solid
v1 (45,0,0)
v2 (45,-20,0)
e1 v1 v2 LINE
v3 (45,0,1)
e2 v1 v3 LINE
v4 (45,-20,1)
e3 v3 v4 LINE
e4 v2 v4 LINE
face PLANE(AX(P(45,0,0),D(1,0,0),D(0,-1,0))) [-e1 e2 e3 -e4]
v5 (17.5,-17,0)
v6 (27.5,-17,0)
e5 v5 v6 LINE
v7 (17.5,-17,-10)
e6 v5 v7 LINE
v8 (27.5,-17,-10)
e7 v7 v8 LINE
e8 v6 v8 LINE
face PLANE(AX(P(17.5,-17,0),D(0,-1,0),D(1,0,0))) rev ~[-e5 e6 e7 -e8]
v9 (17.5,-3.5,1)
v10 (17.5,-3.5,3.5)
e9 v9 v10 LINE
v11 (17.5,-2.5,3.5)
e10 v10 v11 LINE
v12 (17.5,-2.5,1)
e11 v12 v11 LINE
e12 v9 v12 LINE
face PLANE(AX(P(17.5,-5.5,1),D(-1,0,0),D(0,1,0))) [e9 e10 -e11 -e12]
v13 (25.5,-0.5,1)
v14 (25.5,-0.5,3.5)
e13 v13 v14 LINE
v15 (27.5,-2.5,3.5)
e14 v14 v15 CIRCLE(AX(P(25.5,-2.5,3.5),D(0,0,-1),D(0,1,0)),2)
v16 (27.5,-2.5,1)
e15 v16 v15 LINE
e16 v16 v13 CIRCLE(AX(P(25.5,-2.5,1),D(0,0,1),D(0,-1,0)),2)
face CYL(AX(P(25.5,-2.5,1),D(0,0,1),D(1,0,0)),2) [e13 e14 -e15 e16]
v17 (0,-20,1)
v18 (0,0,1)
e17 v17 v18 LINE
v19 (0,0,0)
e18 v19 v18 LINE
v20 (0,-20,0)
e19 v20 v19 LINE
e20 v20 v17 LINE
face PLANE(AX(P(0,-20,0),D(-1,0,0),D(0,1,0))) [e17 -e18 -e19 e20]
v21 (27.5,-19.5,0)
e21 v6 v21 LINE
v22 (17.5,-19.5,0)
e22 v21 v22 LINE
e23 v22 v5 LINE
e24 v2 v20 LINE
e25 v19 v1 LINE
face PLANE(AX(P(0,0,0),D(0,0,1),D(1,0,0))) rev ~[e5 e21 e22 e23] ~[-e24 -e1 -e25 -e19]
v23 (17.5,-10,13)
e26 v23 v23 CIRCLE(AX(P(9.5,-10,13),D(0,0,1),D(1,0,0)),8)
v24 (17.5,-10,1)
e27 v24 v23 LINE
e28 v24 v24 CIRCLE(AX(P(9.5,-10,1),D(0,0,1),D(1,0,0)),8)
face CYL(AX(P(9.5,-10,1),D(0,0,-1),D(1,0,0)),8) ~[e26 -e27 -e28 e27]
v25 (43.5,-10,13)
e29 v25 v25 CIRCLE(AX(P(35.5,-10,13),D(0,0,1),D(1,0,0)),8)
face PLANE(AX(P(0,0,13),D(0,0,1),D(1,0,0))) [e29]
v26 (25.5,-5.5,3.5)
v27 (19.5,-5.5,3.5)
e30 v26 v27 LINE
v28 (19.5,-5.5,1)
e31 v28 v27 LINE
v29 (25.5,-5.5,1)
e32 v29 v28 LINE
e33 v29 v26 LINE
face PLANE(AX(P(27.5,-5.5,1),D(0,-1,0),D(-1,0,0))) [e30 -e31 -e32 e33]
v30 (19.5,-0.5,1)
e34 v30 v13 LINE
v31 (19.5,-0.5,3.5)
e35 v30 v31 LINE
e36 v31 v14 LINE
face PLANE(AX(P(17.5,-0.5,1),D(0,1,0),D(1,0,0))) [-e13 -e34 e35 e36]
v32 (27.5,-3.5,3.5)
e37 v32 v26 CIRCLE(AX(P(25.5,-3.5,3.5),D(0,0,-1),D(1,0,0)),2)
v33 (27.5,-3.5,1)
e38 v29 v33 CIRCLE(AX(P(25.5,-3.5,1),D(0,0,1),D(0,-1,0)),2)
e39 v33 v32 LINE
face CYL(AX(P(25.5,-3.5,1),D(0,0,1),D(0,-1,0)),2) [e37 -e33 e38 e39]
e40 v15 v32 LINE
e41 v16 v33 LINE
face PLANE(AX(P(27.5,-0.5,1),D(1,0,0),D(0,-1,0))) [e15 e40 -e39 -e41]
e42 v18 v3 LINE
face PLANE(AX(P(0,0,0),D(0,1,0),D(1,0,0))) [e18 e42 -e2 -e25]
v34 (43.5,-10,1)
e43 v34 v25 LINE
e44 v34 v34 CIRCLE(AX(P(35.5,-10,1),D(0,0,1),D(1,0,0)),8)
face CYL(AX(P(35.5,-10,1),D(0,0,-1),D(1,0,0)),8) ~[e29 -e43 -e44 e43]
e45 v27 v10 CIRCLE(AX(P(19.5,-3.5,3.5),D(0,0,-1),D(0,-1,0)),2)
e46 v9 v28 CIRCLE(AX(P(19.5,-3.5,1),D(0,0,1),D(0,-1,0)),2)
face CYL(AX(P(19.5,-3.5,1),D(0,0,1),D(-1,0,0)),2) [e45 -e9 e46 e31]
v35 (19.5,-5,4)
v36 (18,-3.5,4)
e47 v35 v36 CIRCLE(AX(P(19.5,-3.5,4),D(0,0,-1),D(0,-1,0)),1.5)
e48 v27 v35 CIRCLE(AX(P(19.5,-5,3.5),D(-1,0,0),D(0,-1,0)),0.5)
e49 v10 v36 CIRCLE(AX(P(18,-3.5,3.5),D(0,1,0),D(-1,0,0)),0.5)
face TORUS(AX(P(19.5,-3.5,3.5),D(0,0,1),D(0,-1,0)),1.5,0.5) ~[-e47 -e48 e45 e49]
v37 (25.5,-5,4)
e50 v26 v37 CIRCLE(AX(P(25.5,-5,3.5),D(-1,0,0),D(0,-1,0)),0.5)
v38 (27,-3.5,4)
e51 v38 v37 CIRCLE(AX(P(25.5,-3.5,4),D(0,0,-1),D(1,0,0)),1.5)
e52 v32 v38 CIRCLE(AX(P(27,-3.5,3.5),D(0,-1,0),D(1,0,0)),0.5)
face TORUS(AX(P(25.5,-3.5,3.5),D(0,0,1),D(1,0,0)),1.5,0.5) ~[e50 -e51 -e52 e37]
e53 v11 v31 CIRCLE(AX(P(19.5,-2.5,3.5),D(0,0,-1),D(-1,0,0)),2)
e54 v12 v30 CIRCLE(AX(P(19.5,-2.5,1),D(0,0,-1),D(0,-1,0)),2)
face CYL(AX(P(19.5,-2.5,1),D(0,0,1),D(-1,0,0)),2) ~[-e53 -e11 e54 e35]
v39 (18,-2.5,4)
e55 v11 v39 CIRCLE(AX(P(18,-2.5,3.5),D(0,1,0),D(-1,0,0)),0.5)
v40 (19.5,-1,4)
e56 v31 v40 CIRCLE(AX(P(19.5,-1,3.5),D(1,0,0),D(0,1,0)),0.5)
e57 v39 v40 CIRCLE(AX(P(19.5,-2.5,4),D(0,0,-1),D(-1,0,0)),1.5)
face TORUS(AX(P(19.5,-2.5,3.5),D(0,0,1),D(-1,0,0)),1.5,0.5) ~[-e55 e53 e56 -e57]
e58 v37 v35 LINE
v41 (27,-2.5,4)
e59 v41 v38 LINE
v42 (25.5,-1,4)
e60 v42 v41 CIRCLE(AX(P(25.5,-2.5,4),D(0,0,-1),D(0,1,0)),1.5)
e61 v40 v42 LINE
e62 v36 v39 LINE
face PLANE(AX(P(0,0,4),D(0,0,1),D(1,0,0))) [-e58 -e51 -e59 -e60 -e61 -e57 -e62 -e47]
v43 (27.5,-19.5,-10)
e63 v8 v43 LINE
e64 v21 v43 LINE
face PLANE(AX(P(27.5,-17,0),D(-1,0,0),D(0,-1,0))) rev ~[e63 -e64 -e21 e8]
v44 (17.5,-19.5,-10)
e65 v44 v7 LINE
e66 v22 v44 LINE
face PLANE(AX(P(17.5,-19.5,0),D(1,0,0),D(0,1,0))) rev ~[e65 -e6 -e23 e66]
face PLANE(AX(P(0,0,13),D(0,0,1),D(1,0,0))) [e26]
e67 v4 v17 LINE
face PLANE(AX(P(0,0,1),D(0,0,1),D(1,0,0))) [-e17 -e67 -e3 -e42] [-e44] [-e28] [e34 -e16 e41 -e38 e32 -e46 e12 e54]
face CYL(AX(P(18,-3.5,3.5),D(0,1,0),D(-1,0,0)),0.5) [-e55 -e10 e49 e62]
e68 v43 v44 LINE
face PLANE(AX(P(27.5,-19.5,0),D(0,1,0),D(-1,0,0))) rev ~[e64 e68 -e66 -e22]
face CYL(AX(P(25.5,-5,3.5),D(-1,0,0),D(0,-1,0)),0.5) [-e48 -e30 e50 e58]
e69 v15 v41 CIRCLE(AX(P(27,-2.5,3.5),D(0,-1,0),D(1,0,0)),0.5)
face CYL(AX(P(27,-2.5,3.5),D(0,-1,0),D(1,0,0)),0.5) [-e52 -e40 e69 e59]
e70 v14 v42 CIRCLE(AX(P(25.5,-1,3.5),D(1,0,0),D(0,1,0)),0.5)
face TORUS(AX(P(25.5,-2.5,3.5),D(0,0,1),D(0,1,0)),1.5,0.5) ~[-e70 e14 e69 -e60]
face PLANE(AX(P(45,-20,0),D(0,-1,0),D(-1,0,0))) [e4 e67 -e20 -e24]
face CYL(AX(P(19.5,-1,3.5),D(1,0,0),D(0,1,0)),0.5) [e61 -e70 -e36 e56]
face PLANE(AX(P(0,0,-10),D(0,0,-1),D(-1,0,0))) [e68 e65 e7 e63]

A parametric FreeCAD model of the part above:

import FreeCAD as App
import Part
import Sketcher


def edges_at(feature, points):
    """Names of the edges that pass closest to the given points."""
    edges = feature.Shape.Edges
    near = lambda p: min(range(len(edges)), key=lambda i: edges[i].distToShape(Part.Vertex(*p))[0])
    return sorted({f"Edge{near(p) + 1}" for p in points})


def add_polygon(sketch, points):
    """Adds a closed chain of lines whose ends are joined by coincident constraints."""
    first, n = sketch.GeometryCount, len(points)
    for a, b in zip(points, points[1:] + points[:1]):
        sketch.addGeometry(Part.LineSegment(App.Vector(*a, 0), App.Vector(*b, 0)), False)
    for i in range(n):
        sketch.addConstraint(Sketcher.Constraint("Coincident", first + i, 2, first + (i + 1) % n, 1))

doc = App.newDocument("Part")
body = doc.addObject("PartDesign::Body", "Body")

sketch1 = body.newObject("Sketcher::SketchObject", "Sketch")
sketch1.AttachmentSupport = (doc.getObject("XY_Plane"), [""])
sketch1.MapMode = "FlatFace"
add_polygon(sketch1, [(45, 0), (0, 0), (0, -20), (45, -20)])
sketch1.addConstraint(Sketcher.Constraint("Horizontal", 0))
sketch1.addConstraint(Sketcher.Constraint("Vertical", 1))
sketch1.addConstraint(Sketcher.Constraint("Horizontal", 2))
sketch1.addConstraint(Sketcher.Constraint("Vertical", 3))
sketch1.addConstraint(Sketcher.Constraint("Coincident", 0, 2, -1, 1))
sketch1.addConstraint(Sketcher.Constraint("DistanceX", 0, 2, 0, 1, 45.0))
sketch1.addConstraint(Sketcher.Constraint("DistanceY", 1, 2, 1, 1, 20.0))
pad1 = body.newObject("PartDesign::Pad", "Pad")
pad1.Profile = sketch1
pad1.Length = 1

sketch2 = body.newObject("Sketcher::SketchObject", "Sketch001")
sketch2.AttachmentSupport = (doc.getObject("XY_Plane"), [""])
sketch2.MapMode = "FlatFace"
sketch2.AttachmentOffset = App.Placement(App.Vector(0, 0, 1), App.Rotation())
sketch2.addGeometry(Part.Circle(App.Vector(10, -10, 0), App.Vector(0, 0, 1), 8), False)
sketch2.addGeometry(Part.Circle(App.Vector(36, -10, 0), App.Vector(0, 0, 1), 8), False)
sketch2.addConstraint(Sketcher.Constraint("Equal", 0, 1))
sketch2.addConstraint(Sketcher.Constraint("Horizontal", 0, 3, 1, 3))
sketch2.addConstraint(Sketcher.Constraint("Diameter", 0, 16.0))
sketch2.addConstraint(Sketcher.Constraint("DistanceY", 0, 3, -1, 1, 10.0))
sketch2.addConstraint(Sketcher.Constraint("DistanceX", 0, 3, 1, 3, 26.0))
sketch2.addConstraint(Sketcher.Constraint("DistanceX", -1, 1, 0, 3, 9.5))
pad2 = body.newObject("PartDesign::Pad", "Pad001")
pad2.Profile = sketch2
pad2.Length = 12

sketch3 = body.newObject("Sketcher::SketchObject", "Sketch002")
sketch3.AttachmentSupport = (doc.getObject("XY_Plane"), [""])
sketch3.MapMode = "FlatFace"
sketch3.AttachmentOffset = App.Placement(App.Vector(0, 0, 1), App.Rotation())
add_polygon(sketch3, [(28, 0), (18, 0), (18, -6), (28, -6)])
sketch3.addConstraint(Sketcher.Constraint("Horizontal", 0))
sketch3.addConstraint(Sketcher.Constraint("Vertical", 1))
sketch3.addConstraint(Sketcher.Constraint("Horizontal", 2))
sketch3.addConstraint(Sketcher.Constraint("Vertical", 3))
sketch3.addConstraint(Sketcher.Constraint("DistanceX", 0, 2, 0, 1, 10.0))
sketch3.addConstraint(Sketcher.Constraint("DistanceY", 1, 2, 1, 1, 5.0))
sketch3.addConstraint(Sketcher.Constraint("DistanceX", -1, 1, 0, 2, 17.5))
sketch3.addConstraint(Sketcher.Constraint("DistanceY", 0, 2, -1, 1, 0.5))
pad3 = body.newObject("PartDesign::Pad", "Pad002")
pad3.Profile = sketch3
pad3.Length = 3
doc.recompute()

fillet = body.newObject("PartDesign::Fillet", "Fillet")
fillet.Base = (pad3, edges_at(pad3, [
    (27.5, -0.5, 2.5),
    (27.5, -5.5, 2.5),
    (17.5, -0.5, 2.5),
    (17.5, -5.5, 2.5),
]))
fillet.Radius = 2
doc.recompute()

fillet2 = body.newObject("PartDesign::Fillet", "Fillet001")
fillet2.Base = (fillet, edges_at(fillet, [
    (17.5, -3, 4),
    (18.086, -1.086, 4),
    (22.5, -0.5, 4),
    (26.914, -1.086, 4),
    (27.5, -3, 4),
    (26.914, -4.914, 4),
    (22.5, -5.5, 4),
    (18.086, -4.914, 4),
]))
fillet2.Radius = 0.5

sketch4 = body.newObject("Sketcher::SketchObject", "Sketch003")
sketch4.AttachmentSupport = (doc.getObject("XY_Plane"), [""])
sketch4.MapMode = "FlatFace"
add_polygon(sketch4, [(27.5, -17), (27.5, -19.5), (17.5, -19.5), (17.5, -17)])
sketch4.addConstraint(Sketcher.Constraint("Vertical", 0))
sketch4.addConstraint(Sketcher.Constraint("Horizontal", 1))
sketch4.addConstraint(Sketcher.Constraint("Vertical", 2))
sketch4.addConstraint(Sketcher.Constraint("Horizontal", 3))
sketch4.addConstraint(Sketcher.Constraint("DistanceX", 1, 2, 1, 1, 10.0))
sketch4.addConstraint(Sketcher.Constraint("DistanceY", 0, 2, 0, 1, 2.5))
sketch4.addConstraint(Sketcher.Constraint("DistanceX", -1, 1, 1, 2, 17.5))
sketch4.addConstraint(Sketcher.Constraint("DistanceY", 2, 2, -1, 1, 17.0))
pad4 = body.newObject("PartDesign::Pad", "Pad003")
pad4.Profile = sketch4
pad4.Length = 10
pad4.Reversed = True

doc.recompute()
